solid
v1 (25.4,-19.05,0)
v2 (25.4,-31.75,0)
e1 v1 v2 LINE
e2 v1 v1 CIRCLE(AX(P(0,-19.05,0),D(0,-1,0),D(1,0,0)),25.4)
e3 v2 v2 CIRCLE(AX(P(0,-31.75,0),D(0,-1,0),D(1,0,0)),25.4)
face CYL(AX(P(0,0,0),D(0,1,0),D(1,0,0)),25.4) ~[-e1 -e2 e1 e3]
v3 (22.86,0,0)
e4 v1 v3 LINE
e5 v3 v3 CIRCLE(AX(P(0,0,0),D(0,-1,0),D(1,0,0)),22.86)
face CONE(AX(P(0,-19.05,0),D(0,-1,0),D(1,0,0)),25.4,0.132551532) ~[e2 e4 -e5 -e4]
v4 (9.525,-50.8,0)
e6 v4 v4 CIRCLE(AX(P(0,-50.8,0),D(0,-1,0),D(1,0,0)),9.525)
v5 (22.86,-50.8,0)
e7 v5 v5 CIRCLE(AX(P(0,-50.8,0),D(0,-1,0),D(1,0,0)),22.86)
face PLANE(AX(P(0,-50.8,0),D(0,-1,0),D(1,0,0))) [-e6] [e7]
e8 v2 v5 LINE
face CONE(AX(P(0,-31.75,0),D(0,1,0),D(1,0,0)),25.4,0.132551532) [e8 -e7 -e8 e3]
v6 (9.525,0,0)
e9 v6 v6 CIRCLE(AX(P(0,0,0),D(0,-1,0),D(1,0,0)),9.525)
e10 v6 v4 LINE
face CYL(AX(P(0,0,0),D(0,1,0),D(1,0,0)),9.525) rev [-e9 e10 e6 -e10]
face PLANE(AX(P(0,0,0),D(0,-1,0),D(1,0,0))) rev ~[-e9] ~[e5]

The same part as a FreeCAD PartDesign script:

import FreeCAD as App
import Part
import Sketcher
from FreeCAD import Vector
Q = App.Units.Quantity


def edges_at(feature, points):
    """Names of the edges that pass closest to the given points."""
    edges = feature.Shape.Edges
    near = lambda p: min(range(len(edges)), key=lambda i: edges[i].distToShape(Part.Vertex(*p))[0])
    return sorted({f"Edge{near(p) + 1}" for p in points})

doc = App.newDocument("Part")
body = doc.addObject("PartDesign::Body", "Body")

# Sketch on XZ plane
sketch1 = doc.addObject("Sketcher::SketchObject", "Sketch")
body.addObject(sketch1)
sketch1.AttachmentSupport = (doc.XZ_Plane, [""])
sketch1.MapMode = "FlatFace"
sketch1.addGeometry(Part.Circle(Vector(0, 0, 0), Vector(0, 0, 1), 25), False)
sketch1.addGeometry(Part.Circle(Vector(0, 0, 0), Vector(0, 0, 1), 10), False)
sketch1.addConstraint(Sketcher.Constraint("Coincident", 0, 3, -1, 1))
sketch1.addConstraint(Sketcher.Constraint("Coincident", 1, 3, -1, 1))
sketch1.addConstraint(Sketcher.Constraint("Diameter", 0, Q("2 in")))
sketch1.addConstraint(Sketcher.Constraint("Diameter", 1, Q("0.75 in")))
pad1 = doc.addObject("PartDesign::Pad", "Pad")
body.addObject(pad1)
pad1.Profile = sketch1
pad1.Length = Q("2 in")
doc.recompute()

chamfer = doc.addObject("PartDesign::Chamfer", "Chamfer")
body.addObject(chamfer)
chamfer.Base = (pad1, edges_at(pad1, [(25.4, -25.4, 0), (-25.4, 0, 0), (-25.4, -50.8, 0)]))
chamfer.ChamferType = "Two distances"
chamfer.Size = Q("0.75 in")
chamfer.Size2 = Q("0.1 in")

doc.recompute()
